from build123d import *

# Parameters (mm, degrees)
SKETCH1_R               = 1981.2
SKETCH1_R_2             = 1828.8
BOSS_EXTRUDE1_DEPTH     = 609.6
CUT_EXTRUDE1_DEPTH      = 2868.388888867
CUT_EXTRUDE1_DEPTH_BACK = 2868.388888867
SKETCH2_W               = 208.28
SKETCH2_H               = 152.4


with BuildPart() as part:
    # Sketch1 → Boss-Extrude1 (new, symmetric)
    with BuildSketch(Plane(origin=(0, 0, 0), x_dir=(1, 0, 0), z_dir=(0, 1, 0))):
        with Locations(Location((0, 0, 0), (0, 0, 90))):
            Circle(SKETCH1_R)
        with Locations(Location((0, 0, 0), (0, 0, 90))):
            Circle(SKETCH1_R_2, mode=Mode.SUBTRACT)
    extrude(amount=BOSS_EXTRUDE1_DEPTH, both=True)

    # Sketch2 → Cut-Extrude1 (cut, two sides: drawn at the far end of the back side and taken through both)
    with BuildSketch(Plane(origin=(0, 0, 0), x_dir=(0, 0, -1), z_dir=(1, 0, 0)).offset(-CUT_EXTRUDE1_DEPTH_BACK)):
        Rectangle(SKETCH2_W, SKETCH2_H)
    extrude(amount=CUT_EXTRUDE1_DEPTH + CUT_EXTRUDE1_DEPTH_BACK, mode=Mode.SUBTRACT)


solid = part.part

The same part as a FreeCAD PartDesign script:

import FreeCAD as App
import Part
import Sketcher

V = App.Vector
Q = App.Units.Quantity

doc = App.newDocument("Part")
body = doc.addObject("PartDesign::Body", "Body")

# Sketch on XZ plane
sketch1 = body.newObject("Sketcher::SketchObject", "Sketch")
sketch1.AttachmentSupport = (doc.getObject("XZ_Plane"), [""])
sketch1.MapMode = "FlatFace"
sketch1.addGeometry(Part.Circle(V(0, 0, 0), V(0, 0, 1), 1981), False)
sketch1.addGeometry(Part.Circle(V(0, 0, 0), V(0, 0, 1), 1829), False)
sketch1.addConstraint(Sketcher.Constraint("Coincident", 0, 3, -1, 1))
sketch1.addConstraint(Sketcher.Constraint("Coincident", 1, 3, -1, 1))
sketch1.addConstraint(Sketcher.Constraint("Diameter", 0, Q("156 in")))
sketch1.addConstraint(Sketcher.Constraint("Diameter", 1, Q("144 in")))
pad1 = body.newObject("PartDesign::Pad", "Pad")
pad1.Profile = sketch1
pad1.Length = Q("48 in")
pad1.Midplane = True

# Sketch on YZ plane
sketch2 = body.newObject("Sketcher::SketchObject", "Sketch001")
sketch2.AttachmentSupport = (doc.getObject("YZ_Plane"), [""])
sketch2.MapMode = "FlatFace"
sketch2.addGeometry(Part.LineSegment(V(76, 104, 0), V(-76, 104, 0)), False)
sketch2.addGeometry(Part.LineSegment(V(-76, 104, 0), V(-76, -104, 0)), False)
sketch2.addGeometry(Part.LineSegment(V(-76, -104, 0), V(76, -104, 0)), False)
sketch2.addGeometry(Part.LineSegment(V(76, -104, 0), V(76, 104, 0)), False)
sketch2.addConstraint(Sketcher.Constraint("Coincident", 0, 2, 1, 1))
sketch2.addConstraint(Sketcher.Constraint("Coincident", 1, 2, 2, 1))
sketch2.addConstraint(Sketcher.Constraint("Coincident", 2, 2, 3, 1))
sketch2.addConstraint(Sketcher.Constraint("Coincident", 3, 2, 0, 1))
sketch2.addConstraint(Sketcher.Constraint("Horizontal", 0))
sketch2.addConstraint(Sketcher.Constraint("Vertical", 1))
sketch2.addConstraint(Sketcher.Constraint("Horizontal", 2))
sketch2.addConstraint(Sketcher.Constraint("Vertical", 3))
sketch2.addConstraint(Sketcher.Constraint("Symmetric", 0, 2, 2, 2, -1, 1))
sketch2.addConstraint(Sketcher.Constraint("DistanceX", 0, 2, 0, 1, Q("6 in")))
sketch2.addConstraint(Sketcher.Constraint("DistanceY", 1, 2, 1, 1, Q("8.2 in")))
pocket1 = body.newObject("PartDesign::Pocket", "Pocket")
pocket1.Profile = sketch2
pocket1.Type = "ThroughAll"
pocket1.Midplane = True

doc.recompute()
